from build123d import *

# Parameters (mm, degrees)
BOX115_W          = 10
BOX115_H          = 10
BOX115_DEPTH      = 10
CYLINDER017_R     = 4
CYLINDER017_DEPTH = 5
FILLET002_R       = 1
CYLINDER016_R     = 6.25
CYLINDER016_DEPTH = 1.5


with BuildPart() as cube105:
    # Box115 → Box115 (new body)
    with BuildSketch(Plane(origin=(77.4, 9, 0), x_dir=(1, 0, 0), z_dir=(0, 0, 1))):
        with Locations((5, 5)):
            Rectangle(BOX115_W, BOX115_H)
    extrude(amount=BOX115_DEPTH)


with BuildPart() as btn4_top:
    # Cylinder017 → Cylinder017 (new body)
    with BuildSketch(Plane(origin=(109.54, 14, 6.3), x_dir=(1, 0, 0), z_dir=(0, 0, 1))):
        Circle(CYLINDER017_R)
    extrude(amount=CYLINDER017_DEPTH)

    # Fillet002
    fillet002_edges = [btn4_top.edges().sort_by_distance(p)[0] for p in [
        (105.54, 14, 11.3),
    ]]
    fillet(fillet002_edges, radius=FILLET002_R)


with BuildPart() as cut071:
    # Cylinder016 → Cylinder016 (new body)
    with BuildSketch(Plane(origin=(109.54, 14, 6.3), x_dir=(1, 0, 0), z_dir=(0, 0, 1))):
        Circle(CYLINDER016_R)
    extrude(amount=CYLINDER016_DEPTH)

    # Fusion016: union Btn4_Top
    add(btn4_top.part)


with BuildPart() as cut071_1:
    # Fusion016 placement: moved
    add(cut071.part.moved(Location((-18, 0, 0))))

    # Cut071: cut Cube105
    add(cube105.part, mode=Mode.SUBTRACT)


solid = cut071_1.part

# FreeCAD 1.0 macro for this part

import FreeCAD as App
import Part
import Sketcher
Q = App.Units.Quantity


def edges_at(feature, points):
    """Names of the edges that pass closest to the given points."""
    edges = feature.Shape.Edges
    near = lambda p: min(range(len(edges)), key=lambda i: edges[i].distToShape(Part.Vertex(*p))[0])
    return sorted({f"Edge{near(p) + 1}" for p in points})

doc = App.newDocument("Part")
body = doc.addObject("PartDesign::Body", "Body")

# Sketch on XY plane
sketch1 = body.newObject("Sketcher::SketchObject", "Sketch")
sketch1.AttachmentSupport = (doc.getObject("XY_Plane"), [""])
sketch1.MapMode = "FlatFace"
sketch1.addGeometry(Part.LineSegment(App.Vector(77.4, 19, 0), App.Vector(77.4, 9, 0)), False)
sketch1.addGeometry(Part.LineSegment(App.Vector(77.4, 9, 0), App.Vector(87.4, 9, 0)), False)
sketch1.addGeometry(Part.LineSegment(App.Vector(87.4, 9, 0), App.Vector(87.4, 19, 0)), False)
sketch1.addGeometry(Part.LineSegment(App.Vector(87.4, 19, 0), App.Vector(77.4, 19, 0)), False)
sketch1.addConstraint(Sketcher.Constraint("Coincident", 0, 2, 1, 1))
sketch1.addConstraint(Sketcher.Constraint("Coincident", 1, 2, 2, 1))
sketch1.addConstraint(Sketcher.Constraint("Coincident", 2, 2, 3, 1))
sketch1.addConstraint(Sketcher.Constraint("Coincident", 3, 2, 0, 1))
sketch1.addConstraint(Sketcher.Constraint("Vertical", 0))
sketch1.addConstraint(Sketcher.Constraint("Horizontal", 1))
sketch1.addConstraint(Sketcher.Constraint("Vertical", 2))
sketch1.addConstraint(Sketcher.Constraint("Horizontal", 3))
sketch1.addConstraint(Sketcher.Constraint("Equal", 3, 0))
sketch1.addConstraint(Sketcher.Constraint("DistanceX", 1, 1, 1, 2, Q("10 mm")))
sketch1.addConstraint(Sketcher.Constraint("DistanceY", -1, 1, 0, 2, Q("9 mm")))
sketch1.addConstraint(Sketcher.Constraint("DistanceX", -1, 1, 0, 2, Q("77.4 mm")))
pad1 = body.newObject("PartDesign::Pad", "Pad")
pad1.Profile = sketch1
pad1.Length = 10
body2 = doc.addObject("PartDesign::Body", "Body001")

# Sketch on XY plane
sketch2 = body2.newObject("Sketcher::SketchObject", "Sketch001")
sketch2.AttachmentSupport = (doc.getObject("XY_Plane001"), [""])
sketch2.MapMode = "FlatFace"
sketch2.AttachmentOffset = App.Placement(App.Vector(0, 0, 6.3), App.Rotation())
sketch2.addGeometry(Part.Circle(App.Vector(109.54, 14, 0), App.Vector(0, 0, 1), 4), False)
sketch2.addConstraint(Sketcher.Constraint("Diameter", 0, Q("8 mm")))
sketch2.addConstraint(Sketcher.Constraint("DistanceY", -1, 1, 0, 3, Q("14 mm")))
sketch2.addConstraint(Sketcher.Constraint("DistanceX", -1, 1, 0, 3, Q("109.54 mm")))
pad2 = body2.newObject("PartDesign::Pad", "Pad001")
pad2.Profile = sketch2
pad2.Length = 5
doc.recompute()

fillet = body2.newObject("PartDesign::Fillet", "Fillet")
fillet.Base = (pad2, edges_at(pad2, [(105.54, 14, 11.3)]))
fillet.Radius = 1
body3 = doc.addObject("PartDesign::Body", "Body002")

# Sketch on XY plane
sketch3 = body3.newObject("Sketcher::SketchObject", "Sketch002")
sketch3.AttachmentSupport = (doc.getObject("XY_Plane002"), [""])
sketch3.MapMode = "FlatFace"
sketch3.AttachmentOffset = App.Placement(App.Vector(0, 0, 6.3), App.Rotation())
sketch3.addGeometry(Part.Circle(App.Vector(109.54, 14, 0), App.Vector(0, 0, 1), 6.25), False)
sketch3.addConstraint(Sketcher.Constraint("Diameter", 0, Q("12.5 mm")))
sketch3.addConstraint(Sketcher.Constraint("DistanceY", -1, 1, 0, 3, Q("14 mm")))
sketch3.addConstraint(Sketcher.Constraint("DistanceX", -1, 1, 0, 3, Q("109.54 mm")))
pad3 = body3.newObject("PartDesign::Pad", "Pad002")
pad3.Profile = sketch3
pad3.Length = 1.5
doc.recompute()

boolean = body3.newObject("PartDesign::Boolean", "Boolean")
boolean.Type = "Fuse"
boolean.addObjects([body2])
body4 = doc.addObject("PartDesign::Body", "Body003")
doc.recompute()

body3.Placement = App.Placement(App.Vector(-18, 0, 0), App.Rotation(App.Vector(0, 0, 1), 0))
boolean2 = body4.newObject("PartDesign::Boolean", "Boolean001")
boolean2.Type = "Fuse"
boolean2.addObjects([body3])
doc.recompute()

boolean3 = body4.newObject("PartDesign::Boolean", "Boolean002")
boolean3.Type = "Cut"
boolean3.addObjects([body])

doc.recompute()
